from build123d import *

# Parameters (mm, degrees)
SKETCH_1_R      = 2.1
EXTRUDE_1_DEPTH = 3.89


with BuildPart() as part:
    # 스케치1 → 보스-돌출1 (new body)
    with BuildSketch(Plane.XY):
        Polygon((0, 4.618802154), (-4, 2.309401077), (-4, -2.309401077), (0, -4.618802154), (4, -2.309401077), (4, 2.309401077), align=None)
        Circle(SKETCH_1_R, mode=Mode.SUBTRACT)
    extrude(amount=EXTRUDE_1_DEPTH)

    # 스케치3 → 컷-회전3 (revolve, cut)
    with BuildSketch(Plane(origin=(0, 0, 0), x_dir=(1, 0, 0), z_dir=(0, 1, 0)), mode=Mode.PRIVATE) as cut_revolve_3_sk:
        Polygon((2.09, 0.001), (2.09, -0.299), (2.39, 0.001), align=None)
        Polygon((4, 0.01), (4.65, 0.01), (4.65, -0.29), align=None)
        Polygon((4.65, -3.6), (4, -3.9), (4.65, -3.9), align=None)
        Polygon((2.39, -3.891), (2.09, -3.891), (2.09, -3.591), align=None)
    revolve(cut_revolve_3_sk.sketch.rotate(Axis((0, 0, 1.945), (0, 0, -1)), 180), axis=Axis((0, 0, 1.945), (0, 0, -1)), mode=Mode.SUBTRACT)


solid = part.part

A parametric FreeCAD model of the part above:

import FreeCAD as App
import Part
import Sketcher
from FreeCAD import Vector
Q = App.Units.Quantity

doc = App.newDocument("Part")
body = doc.addObject("PartDesign::Body", "Body")

sketch1 = body.newObject("Sketcher::SketchObject", "Sketch")
sketch1.AttachmentSupport = (doc.getObject("XY_Plane"), [""])
sketch1.MapMode = "FlatFace"
sketch1.addGeometry([
    Part.LineSegment(Vector(0, 4.6, 0), Vector(-4, 2.3, 0)),
    Part.LineSegment(Vector(-4, 2.3, 0), Vector(-4, -2.3, 0)),
    Part.LineSegment(Vector(-4, -2.3, 0), Vector(0, -4.6, 0)),
    Part.LineSegment(Vector(0, -4.6, 0), Vector(4, -2.3, 0)),
    Part.LineSegment(Vector(4, -2.3, 0), Vector(4, 2.3, 0)),
    Part.LineSegment(Vector(4, 2.3, 0), Vector(0, 4.6, 0)),
    Part.Circle(Vector(0, 0, 0), Vector(0, 0, 1), 2.1),
], False)
sketch1.addConstraint([
    Sketcher.Constraint("Coincident", 0, 2, 1, 1),
    Sketcher.Constraint("Coincident", 1, 2, 2, 1),
    Sketcher.Constraint("Coincident", 2, 2, 3, 1),
    Sketcher.Constraint("Coincident", 3, 2, 4, 1),
    Sketcher.Constraint("Coincident", 4, 2, 5, 1),
    Sketcher.Constraint("Coincident", 5, 2, 0, 1),
    Sketcher.Constraint("Vertical", 1),
    Sketcher.Constraint("Vertical", 4),
    Sketcher.Constraint("Coincident", 6, 3, -1, 1),
    Sketcher.Constraint("Symmetric", 0, 2, 3, 2, -1, 1),
    Sketcher.Constraint("Symmetric", 2, 2, 5, 2, -1, 1),
    Sketcher.Constraint("PointOnObject", 2, 2, -2),
    Sketcher.Constraint("Parallel", 2, 5),
    Sketcher.Constraint("Horizontal", 1, 2, 3, 2),
    Sketcher.Constraint("Diameter", 6, Q("4.2 mm")),
    Sketcher.Constraint("Angle", 0, Q("-150 deg")),
    Sketcher.Constraint("DistanceX", 0, 2, -1, 1, Q("4 mm")),
    Sketcher.Constraint("DistanceY", -1, 1, 0, 2, Q("2.309401 mm")),
])
pad1 = body.newObject("PartDesign::Pad", "Pad")
pad1.Profile = sketch1
pad1.Length = 3.89

sketch2 = body.newObject("Sketcher::SketchObject", "Sketch001")
sketch2.AttachmentSupport = (doc.getObject("XZ_Plane"), [""])
sketch2.MapMode = "FlatFace"
sketch2.addGeometry([
    Part.LineSegment(Vector(2.09, 0, 0), Vector(2.09, 0.3, 0)),
    Part.LineSegment(Vector(2.09, 0.3, 0), Vector(2.39, 0, 0)),
    Part.LineSegment(Vector(2.39, 0, 0), Vector(2.09, 0, 0)),
    Part.LineSegment(Vector(4.65, -0.01, 0), Vector(4, -0.01, 0)),
    Part.LineSegment(Vector(4, -0.01, 0), Vector(4.65, 0.29, 0)),
    Part.LineSegment(Vector(4.65, 0.29, 0), Vector(4.65, -0.01, 0)),
    Part.LineSegment(Vector(4.65, 3.6, 0), Vector(4, 3.9, 0)),
    Part.LineSegment(Vector(4, 3.9, 0), Vector(4.65, 3.9, 0)),
    Part.LineSegment(Vector(4.65, 3.9, 0), Vector(4.65, 3.6, 0)),
    Part.LineSegment(Vector(2.09, 3.89, 0), Vector(2.39, 3.89, 0)),
    Part.LineSegment(Vector(2.39, 3.89, 0), Vector(2.09, 3.59, 0)),
    Part.LineSegment(Vector(2.09, 3.59, 0), Vector(2.09, 3.89, 0)),
], False)
sketch2.addConstraint([
    Sketcher.Constraint("Coincident", 0, 2, 1, 1),
    Sketcher.Constraint("Coincident", 1, 2, 2, 1),
    Sketcher.Constraint("Coincident", 2, 2, 0, 1),
    Sketcher.Constraint("Coincident", 3, 2, 4, 1),
    Sketcher.Constraint("Coincident", 4, 2, 5, 1),
    Sketcher.Constraint("Coincident", 5, 2, 3, 1),
    Sketcher.Constraint("Coincident", 6, 2, 7, 1),
    Sketcher.Constraint("Coincident", 7, 2, 8, 1),
    Sketcher.Constraint("Coincident", 8, 2, 6, 1),
    Sketcher.Constraint("Coincident", 9, 2, 10, 1),
    Sketcher.Constraint("Coincident", 10, 2, 11, 1),
    Sketcher.Constraint("Coincident", 11, 2, 9, 1),
    Sketcher.Constraint("Vertical", 0),
    Sketcher.Constraint("Horizontal", 2),
    Sketcher.Constraint("Horizontal", 3),
    Sketcher.Constraint("Vertical", 5),
    Sketcher.Constraint("Horizontal", 7),
    Sketcher.Constraint("Vertical", 8),
    Sketcher.Constraint("Horizontal", 9),
    Sketcher.Constraint("Vertical", 11),
    Sketcher.Constraint("Perpendicular", 1, 10),
    Sketcher.Constraint("Vertical", 3, 2, 6, 2),
    Sketcher.Constraint("Vertical", 5, 2, 7, 2),
    Sketcher.Constraint("Vertical", 1, 2, 9, 2),
    Sketcher.Constraint("Vertical", 2, 2, 10, 2),
    Sketcher.Constraint("Equal", 9, 0),
    Sketcher.Constraint("Equal", 0, 5),
    Sketcher.Constraint("Equal", 5, 8),
    Sketcher.Constraint("DistanceX", 2, 2, 2, 1, Q("0.3 mm")),
    Sketcher.Constraint("DistanceX", -1, 1, 3, 2, Q("4 mm")),
    Sketcher.Constraint("DistanceX", 3, 2, 3, 1, Q("0.65 mm")),
    Sketcher.Constraint("DistanceY", -1, 1, 6, 2, Q("3.9 mm")),
    Sketcher.Constraint("DistanceX", -1, 1, 0, 2, Q("2.09 mm")),
    Sketcher.Constraint("DistanceY", 3, 2, -1, 1, Q("0.01 mm")),
    Sketcher.Constraint("DistanceY", -1, 1, 0, 2, Q("0.299 mm")),
    Sketcher.Constraint("DistanceY", -1, 1, 9, 2, Q("3.891 mm")),
])
groove = body.newObject("PartDesign::Groove", "Groove")
groove.Profile = sketch2
groove.ReferenceAxis = (sketch2, ["V_Axis"])
groove.Angle = 360

doc.recompute()
